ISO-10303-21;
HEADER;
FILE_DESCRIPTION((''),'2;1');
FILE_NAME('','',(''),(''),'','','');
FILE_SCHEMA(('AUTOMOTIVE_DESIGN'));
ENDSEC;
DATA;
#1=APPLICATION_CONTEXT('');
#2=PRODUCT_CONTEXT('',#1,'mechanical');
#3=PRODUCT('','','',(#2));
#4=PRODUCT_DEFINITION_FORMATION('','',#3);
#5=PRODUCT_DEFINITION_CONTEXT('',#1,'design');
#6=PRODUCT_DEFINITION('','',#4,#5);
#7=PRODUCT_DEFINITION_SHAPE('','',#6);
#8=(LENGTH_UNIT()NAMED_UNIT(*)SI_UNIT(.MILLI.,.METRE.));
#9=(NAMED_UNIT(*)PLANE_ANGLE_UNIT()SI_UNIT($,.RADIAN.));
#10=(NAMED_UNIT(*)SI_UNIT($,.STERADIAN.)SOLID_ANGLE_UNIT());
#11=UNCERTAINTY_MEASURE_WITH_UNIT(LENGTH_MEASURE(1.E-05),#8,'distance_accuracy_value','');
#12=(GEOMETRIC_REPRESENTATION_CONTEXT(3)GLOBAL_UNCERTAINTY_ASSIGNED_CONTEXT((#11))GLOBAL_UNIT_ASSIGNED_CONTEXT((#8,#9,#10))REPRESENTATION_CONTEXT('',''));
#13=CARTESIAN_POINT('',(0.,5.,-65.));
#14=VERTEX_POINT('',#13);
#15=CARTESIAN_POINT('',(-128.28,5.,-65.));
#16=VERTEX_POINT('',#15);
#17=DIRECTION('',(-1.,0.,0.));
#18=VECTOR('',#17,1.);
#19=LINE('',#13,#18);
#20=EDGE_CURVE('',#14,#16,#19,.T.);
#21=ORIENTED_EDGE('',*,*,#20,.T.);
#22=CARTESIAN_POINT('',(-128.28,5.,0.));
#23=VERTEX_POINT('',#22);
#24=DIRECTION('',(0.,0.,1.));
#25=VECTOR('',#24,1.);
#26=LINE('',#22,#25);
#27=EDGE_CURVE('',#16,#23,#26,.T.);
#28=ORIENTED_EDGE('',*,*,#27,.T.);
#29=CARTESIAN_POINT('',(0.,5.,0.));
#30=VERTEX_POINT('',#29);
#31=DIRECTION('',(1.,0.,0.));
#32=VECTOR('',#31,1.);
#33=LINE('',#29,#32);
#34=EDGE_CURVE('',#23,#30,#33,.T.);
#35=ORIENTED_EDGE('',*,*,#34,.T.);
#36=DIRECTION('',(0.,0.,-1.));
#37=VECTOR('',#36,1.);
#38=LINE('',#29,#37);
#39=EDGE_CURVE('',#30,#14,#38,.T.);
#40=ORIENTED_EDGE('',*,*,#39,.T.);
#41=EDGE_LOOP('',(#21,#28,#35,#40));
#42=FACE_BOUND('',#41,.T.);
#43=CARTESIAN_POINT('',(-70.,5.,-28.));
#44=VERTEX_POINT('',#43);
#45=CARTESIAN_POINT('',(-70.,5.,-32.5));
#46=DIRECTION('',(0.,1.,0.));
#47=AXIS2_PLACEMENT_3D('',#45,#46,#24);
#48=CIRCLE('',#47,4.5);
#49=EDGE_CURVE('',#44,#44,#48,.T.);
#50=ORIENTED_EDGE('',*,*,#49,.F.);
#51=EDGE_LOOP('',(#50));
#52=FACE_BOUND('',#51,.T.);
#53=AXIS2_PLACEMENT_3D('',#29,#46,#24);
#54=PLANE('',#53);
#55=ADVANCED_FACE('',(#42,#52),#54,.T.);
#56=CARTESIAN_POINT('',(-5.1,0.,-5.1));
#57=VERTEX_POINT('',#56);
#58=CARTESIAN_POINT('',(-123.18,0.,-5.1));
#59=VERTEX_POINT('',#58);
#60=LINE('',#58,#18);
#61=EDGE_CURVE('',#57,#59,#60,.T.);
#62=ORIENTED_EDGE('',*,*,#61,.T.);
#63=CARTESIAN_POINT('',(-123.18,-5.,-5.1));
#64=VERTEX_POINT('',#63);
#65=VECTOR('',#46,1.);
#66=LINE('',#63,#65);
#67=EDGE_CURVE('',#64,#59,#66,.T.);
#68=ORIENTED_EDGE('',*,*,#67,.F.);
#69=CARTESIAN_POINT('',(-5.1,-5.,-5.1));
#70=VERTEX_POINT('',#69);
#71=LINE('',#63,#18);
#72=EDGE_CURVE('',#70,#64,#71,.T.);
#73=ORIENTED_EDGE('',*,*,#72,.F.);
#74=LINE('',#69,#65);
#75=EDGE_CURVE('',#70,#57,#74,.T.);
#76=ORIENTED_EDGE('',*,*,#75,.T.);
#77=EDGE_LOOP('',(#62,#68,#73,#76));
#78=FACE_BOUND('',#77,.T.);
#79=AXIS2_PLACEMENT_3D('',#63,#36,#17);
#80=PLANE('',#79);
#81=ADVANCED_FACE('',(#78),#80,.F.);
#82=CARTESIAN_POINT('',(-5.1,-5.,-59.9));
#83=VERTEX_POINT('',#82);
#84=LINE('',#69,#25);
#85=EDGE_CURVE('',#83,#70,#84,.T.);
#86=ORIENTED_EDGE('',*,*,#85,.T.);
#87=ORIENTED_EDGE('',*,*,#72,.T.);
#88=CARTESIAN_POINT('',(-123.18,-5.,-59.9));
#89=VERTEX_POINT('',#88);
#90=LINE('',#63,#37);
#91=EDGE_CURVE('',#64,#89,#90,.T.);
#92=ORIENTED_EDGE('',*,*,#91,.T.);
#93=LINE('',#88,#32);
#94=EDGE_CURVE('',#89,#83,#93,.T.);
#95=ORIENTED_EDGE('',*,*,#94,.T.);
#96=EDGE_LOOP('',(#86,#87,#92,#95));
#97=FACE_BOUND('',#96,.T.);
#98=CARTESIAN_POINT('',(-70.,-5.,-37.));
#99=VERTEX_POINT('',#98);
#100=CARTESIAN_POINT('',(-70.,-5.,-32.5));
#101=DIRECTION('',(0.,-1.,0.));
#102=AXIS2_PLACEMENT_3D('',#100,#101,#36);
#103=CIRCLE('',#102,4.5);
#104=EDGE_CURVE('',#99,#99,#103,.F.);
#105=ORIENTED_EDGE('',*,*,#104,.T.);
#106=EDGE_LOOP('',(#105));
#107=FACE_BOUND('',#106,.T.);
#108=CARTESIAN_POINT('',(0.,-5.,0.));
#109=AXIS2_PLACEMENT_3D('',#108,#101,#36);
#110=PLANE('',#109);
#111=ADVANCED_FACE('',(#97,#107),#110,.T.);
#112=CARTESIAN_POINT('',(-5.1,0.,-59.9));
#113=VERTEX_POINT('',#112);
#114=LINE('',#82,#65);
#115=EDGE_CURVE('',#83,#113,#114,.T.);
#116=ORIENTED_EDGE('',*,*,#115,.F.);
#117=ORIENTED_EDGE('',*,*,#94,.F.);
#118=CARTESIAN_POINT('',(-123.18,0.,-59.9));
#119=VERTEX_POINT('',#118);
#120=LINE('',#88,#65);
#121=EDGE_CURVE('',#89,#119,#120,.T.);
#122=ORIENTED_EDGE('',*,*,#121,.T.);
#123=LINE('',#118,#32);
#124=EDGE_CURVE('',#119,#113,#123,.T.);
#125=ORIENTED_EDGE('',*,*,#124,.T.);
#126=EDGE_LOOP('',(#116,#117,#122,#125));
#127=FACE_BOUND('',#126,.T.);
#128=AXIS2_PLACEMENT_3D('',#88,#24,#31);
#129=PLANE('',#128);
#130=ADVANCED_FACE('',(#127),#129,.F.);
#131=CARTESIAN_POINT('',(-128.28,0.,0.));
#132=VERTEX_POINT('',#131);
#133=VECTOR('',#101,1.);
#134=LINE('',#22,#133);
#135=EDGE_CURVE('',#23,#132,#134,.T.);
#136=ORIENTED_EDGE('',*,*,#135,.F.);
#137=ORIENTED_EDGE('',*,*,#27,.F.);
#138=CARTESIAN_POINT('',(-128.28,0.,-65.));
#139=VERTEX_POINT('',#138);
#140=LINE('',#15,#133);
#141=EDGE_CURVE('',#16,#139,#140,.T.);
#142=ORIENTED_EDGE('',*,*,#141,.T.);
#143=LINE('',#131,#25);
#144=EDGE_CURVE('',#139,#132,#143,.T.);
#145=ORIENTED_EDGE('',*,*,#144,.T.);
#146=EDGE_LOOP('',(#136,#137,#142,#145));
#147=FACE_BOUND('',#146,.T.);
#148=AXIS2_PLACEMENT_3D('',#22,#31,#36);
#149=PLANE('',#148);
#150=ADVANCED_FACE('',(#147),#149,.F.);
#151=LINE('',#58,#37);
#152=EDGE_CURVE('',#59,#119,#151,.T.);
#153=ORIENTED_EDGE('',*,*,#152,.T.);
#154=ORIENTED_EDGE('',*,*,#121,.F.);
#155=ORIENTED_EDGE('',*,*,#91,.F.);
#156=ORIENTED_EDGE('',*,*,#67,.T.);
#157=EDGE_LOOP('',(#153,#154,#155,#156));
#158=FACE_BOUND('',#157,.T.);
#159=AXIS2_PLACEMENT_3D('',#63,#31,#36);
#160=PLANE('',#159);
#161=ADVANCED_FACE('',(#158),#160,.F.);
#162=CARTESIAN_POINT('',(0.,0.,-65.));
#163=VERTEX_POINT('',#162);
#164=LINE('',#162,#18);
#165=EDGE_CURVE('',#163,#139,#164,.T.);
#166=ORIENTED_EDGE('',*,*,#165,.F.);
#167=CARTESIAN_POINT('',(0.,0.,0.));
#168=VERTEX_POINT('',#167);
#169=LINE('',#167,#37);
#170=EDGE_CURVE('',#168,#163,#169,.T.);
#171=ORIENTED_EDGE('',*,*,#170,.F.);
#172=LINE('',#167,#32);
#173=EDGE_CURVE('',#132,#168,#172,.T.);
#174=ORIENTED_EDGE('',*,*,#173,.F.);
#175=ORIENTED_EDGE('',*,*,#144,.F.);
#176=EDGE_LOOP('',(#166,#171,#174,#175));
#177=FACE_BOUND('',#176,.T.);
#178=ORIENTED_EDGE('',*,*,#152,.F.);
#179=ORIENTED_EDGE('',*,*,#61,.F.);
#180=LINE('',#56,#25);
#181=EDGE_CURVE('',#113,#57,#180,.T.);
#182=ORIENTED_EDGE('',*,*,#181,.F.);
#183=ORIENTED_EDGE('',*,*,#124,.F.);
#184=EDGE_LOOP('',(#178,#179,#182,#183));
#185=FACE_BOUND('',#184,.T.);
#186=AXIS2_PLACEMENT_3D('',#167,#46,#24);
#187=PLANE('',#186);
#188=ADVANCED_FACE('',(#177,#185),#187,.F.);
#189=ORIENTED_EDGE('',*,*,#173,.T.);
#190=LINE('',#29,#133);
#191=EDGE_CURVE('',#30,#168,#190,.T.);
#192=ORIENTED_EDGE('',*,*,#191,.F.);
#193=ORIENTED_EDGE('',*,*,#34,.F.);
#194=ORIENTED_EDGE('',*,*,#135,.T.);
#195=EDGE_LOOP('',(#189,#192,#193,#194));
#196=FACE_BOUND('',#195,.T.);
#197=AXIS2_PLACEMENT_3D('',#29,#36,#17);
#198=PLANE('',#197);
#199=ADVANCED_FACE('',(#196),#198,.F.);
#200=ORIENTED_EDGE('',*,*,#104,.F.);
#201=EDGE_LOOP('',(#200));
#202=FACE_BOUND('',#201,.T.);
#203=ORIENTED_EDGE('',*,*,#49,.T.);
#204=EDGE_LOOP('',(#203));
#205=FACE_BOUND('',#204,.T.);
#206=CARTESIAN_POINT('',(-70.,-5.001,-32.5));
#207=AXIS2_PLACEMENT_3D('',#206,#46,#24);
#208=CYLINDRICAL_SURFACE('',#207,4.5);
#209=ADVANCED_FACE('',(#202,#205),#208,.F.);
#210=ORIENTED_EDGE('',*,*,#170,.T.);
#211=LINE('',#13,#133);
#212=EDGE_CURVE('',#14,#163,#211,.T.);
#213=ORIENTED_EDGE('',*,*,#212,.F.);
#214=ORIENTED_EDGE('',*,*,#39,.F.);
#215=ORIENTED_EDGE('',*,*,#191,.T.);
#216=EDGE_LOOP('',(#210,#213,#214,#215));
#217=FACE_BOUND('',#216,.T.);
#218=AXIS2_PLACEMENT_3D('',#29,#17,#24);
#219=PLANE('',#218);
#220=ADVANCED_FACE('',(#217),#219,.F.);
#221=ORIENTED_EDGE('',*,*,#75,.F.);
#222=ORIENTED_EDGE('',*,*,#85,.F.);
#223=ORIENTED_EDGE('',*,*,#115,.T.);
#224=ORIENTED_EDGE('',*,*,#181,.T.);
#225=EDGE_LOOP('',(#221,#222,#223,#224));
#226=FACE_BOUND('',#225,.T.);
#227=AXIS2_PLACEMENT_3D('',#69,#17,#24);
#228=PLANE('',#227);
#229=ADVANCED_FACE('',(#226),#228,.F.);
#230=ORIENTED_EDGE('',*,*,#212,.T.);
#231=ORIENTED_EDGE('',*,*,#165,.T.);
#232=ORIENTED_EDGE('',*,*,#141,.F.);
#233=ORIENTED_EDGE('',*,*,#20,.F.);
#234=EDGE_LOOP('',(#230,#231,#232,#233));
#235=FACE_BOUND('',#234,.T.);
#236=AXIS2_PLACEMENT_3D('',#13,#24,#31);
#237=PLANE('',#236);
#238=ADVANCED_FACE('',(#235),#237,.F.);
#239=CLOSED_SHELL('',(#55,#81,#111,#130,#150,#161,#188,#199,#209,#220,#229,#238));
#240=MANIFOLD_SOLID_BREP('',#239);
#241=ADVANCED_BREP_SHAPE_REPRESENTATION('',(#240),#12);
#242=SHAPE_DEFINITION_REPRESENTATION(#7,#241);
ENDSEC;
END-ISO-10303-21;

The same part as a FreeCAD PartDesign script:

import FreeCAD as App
import Part
import Sketcher
Q = App.Units.Quantity

doc = App.newDocument("Part")
body = doc.addObject("PartDesign::Body", "Body")

sketch1 = body.newObject("Sketcher::SketchObject", "Sketch")
sketch1.AttachmentSupport = (doc.getObject("XZ_Plane"), [""])
sketch1.MapMode = "FlatFace"
sketch1.addGeometry([
    Part.LineSegment(App.Vector(-128, -65, 0), App.Vector(-128, 0, 0)),
    Part.LineSegment(App.Vector(-128, 0, 0), App.Vector(0, 0, 0)),
    Part.LineSegment(App.Vector(0, 0, 0), App.Vector(0, -65, 0)),
    Part.LineSegment(App.Vector(0, -65, 0), App.Vector(-128, -65, 0)),
], False)
sketch1.addConstraint([
    Sketcher.Constraint("Coincident", 0, 2, 1, 1),
    Sketcher.Constraint("Coincident", 1, 2, 2, 1),
    Sketcher.Constraint("Coincident", 2, 2, 3, 1),
    Sketcher.Constraint("Coincident", 3, 2, 0, 1),
    Sketcher.Constraint("Vertical", 0),
    Sketcher.Constraint("Horizontal", 1),
    Sketcher.Constraint("Vertical", 2),
    Sketcher.Constraint("Horizontal", 3),
    Sketcher.Constraint("Coincident", 1, 2, -1, 1),
    Sketcher.Constraint("DistanceY", 0, 1, 0, 2, Q("65 mm")),
    Sketcher.Constraint("DistanceX", 1, 1, 1, 2, Q("128.28 mm")),
])
pad1 = body.newObject("PartDesign::Pad", "Pad")
pad1.Profile = sketch1
pad1.Length = 5
pad1.Reversed = True

sketch2 = body.newObject("Sketcher::SketchObject", "Sketch001")
sketch2.AttachmentSupport = (doc.getObject("XZ_Plane"), [""])
sketch2.MapMode = "FlatFace"
sketch2.addGeometry([
    Part.LineSegment(App.Vector(-123, -5, 0), App.Vector(-123, -60, 0)),
    Part.LineSegment(App.Vector(-123, -60, 0), App.Vector(-5, -60, 0)),
    Part.LineSegment(App.Vector(-5, -60, 0), App.Vector(-5, -5, 0)),
    Part.LineSegment(App.Vector(-5, -5, 0), App.Vector(-123, -5, 0)),
], False)
sketch2.addConstraint([
    Sketcher.Constraint("Coincident", 0, 2, 1, 1),
    Sketcher.Constraint("Coincident", 1, 2, 2, 1),
    Sketcher.Constraint("Coincident", 2, 2, 3, 1),
    Sketcher.Constraint("Coincident", 3, 2, 0, 1),
    Sketcher.Constraint("Vertical", 0),
    Sketcher.Constraint("Horizontal", 1),
    Sketcher.Constraint("Vertical", 2),
    Sketcher.Constraint("Horizontal", 3),
    Sketcher.Constraint("DistanceY", 0, 2, 0, 1, Q("54.8 mm")),
    Sketcher.Constraint("DistanceX", 1, 1, 1, 2, Q("118.08 mm")),
    Sketcher.Constraint("DistanceY", 0, 2, -1, 1, Q("59.9 mm")),
    Sketcher.Constraint("DistanceX", 1, 2, -1, 1, Q("5.1 mm")),
])
pad2 = body.newObject("PartDesign::Pad", "Pad001")
pad2.Profile = sketch2
pad2.Length = 5

sketch3 = body.newObject("Sketcher::SketchObject", "Sketch002")
sketch3.AttachmentSupport = (doc.getObject("XZ_Plane"), [""])
sketch3.MapMode = "FlatFace"
sketch3.AttachmentOffset = App.Placement(App.Vector(0, 0, -5), App.Rotation())
sketch3.addGeometry(Part.Circle(App.Vector(-70, -32.5, 0), App.Vector(0, 0, 1), 4.5), False)
sketch3.addConstraint([
    Sketcher.Constraint("Diameter", 0, Q("9 mm")),
    Sketcher.Constraint("DistanceX", 0, 3, -1, 1, Q("70 mm")),
    Sketcher.Constraint("DistanceY", 0, 3, -1, 1, Q("32.5 mm")),
])
pocket1 = body.newObject("PartDesign::Pocket", "Pocket")
pocket1.Profile = sketch3
pocket1.Type = "UpToFirst"
pocket1.Reversed = True

doc.recompute()
